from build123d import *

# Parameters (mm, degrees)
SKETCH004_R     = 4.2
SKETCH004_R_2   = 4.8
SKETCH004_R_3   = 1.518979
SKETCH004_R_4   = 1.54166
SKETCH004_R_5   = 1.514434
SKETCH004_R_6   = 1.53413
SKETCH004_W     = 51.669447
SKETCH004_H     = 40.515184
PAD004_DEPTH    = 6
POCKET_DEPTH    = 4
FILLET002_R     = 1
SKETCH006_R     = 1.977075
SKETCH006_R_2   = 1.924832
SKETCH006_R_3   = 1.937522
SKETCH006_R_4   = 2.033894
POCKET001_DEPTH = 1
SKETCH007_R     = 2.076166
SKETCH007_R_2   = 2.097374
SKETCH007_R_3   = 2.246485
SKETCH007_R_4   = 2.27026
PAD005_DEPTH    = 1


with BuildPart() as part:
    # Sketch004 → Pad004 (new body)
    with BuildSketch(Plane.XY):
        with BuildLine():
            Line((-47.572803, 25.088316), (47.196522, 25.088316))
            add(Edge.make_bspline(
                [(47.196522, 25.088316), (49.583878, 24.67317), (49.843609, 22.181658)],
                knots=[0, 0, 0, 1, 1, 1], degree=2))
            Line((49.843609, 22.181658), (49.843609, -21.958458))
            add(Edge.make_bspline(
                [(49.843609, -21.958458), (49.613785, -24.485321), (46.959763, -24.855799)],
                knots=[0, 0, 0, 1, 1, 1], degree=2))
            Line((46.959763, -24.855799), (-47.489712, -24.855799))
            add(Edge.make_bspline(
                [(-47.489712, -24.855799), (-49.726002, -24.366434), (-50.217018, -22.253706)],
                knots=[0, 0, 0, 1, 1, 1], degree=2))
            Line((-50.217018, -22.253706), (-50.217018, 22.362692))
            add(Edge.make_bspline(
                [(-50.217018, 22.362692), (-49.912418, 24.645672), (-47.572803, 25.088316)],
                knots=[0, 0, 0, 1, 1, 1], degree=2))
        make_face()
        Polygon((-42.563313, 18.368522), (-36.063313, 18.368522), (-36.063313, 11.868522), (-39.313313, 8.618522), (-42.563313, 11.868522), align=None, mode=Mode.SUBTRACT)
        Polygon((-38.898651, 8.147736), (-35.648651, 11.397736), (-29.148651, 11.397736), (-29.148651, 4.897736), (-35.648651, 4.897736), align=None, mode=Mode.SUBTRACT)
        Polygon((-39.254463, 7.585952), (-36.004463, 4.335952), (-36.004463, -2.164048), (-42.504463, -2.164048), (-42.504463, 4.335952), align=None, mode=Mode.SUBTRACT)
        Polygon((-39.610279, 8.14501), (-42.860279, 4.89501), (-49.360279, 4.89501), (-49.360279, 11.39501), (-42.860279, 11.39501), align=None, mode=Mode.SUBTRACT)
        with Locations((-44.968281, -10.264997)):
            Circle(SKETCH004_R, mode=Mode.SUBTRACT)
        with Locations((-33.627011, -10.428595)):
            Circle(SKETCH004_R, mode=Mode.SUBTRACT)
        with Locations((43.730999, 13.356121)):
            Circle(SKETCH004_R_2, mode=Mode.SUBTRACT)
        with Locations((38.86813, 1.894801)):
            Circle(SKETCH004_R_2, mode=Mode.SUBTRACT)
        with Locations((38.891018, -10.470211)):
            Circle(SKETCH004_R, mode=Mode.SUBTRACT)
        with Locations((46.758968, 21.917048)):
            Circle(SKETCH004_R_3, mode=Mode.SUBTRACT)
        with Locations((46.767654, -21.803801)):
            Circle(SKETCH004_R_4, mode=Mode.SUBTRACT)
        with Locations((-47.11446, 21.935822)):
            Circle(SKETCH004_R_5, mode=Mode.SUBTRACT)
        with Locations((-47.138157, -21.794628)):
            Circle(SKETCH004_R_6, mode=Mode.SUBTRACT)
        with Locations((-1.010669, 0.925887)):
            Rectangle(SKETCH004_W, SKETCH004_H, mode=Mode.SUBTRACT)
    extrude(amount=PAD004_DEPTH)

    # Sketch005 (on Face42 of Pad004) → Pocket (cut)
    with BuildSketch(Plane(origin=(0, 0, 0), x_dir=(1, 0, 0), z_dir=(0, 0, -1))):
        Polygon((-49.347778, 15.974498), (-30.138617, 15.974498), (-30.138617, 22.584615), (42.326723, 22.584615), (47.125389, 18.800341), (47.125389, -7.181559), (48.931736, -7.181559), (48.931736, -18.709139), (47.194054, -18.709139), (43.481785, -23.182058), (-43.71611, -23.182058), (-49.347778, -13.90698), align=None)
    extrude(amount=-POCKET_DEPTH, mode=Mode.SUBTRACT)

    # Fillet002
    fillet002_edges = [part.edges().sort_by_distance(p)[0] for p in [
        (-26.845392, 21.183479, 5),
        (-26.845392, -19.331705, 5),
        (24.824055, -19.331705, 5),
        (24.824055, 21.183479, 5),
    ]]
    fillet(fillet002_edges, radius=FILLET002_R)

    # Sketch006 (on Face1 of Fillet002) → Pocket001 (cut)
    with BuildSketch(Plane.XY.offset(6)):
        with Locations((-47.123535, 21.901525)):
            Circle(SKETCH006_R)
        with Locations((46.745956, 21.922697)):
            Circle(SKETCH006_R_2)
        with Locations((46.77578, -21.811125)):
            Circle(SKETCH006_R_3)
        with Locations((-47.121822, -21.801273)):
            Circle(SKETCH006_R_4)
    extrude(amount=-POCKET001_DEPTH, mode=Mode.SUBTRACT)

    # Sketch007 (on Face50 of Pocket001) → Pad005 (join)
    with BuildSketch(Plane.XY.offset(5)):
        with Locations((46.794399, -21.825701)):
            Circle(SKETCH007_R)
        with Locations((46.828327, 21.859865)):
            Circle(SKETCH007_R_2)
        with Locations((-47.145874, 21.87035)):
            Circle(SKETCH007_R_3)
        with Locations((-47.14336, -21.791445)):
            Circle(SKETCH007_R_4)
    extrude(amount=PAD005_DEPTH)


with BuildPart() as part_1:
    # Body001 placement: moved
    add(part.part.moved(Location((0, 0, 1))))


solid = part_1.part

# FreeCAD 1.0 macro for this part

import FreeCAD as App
import Part
import Sketcher
from FreeCAD import Vector
Q = App.Units.Quantity


def edges_at(feature, points):
    """Names of the edges that pass closest to the given points."""
    edges = feature.Shape.Edges
    near = lambda p: min(range(len(edges)), key=lambda i: edges[i].distToShape(Part.Vertex(*p))[0])
    return sorted({f"Edge{near(p) + 1}" for p in points})

doc = App.newDocument("Part")
body = doc.addObject("PartDesign::Body", "Body")

# Sketch on XY plane
sketch1 = body.newObject("Sketcher::SketchObject", "Sketch")
sketch1.AttachmentSupport = (doc.getObject("XY_Plane"), [""])
sketch1.MapMode = "FlatFace"
sketch1.addGeometry([
    Part.LineSegment(Vector(47.196522, 25.088316, 0), Vector(-47.572803, 25.088316, 0)),  # 0
    Part.BSplineCurve([Vector(-50.217018, 22.362692, 0), Vector(-49.912418, 24.645672, 0), Vector(-47.572803, 25.088316, 0)], [3, 3], [0, 1], False, 2, [1, 1, 1], False),  # 1
    Part.LineSegment(Vector(-50.217018, 22.362692, 0), Vector(-50.217018, -22.253706, 0)),  # 2
    Part.BSplineCurve([Vector(-47.489712, -24.855799, 0), Vector(-49.726002, -24.366434, 0), Vector(-50.217018, -22.253706, 0)], [3, 3], [0, 1], False, 2, [1, 1, 1], False),  # 3
    Part.LineSegment(Vector(-47.489712, -24.855799, 0), Vector(46.959763, -24.855799, 0)),  # 4
    Part.BSplineCurve([Vector(49.843609, -21.958458, 0), Vector(49.613785, -24.485321, 0), Vector(46.959763, -24.855799, 0)], [3, 3], [0, 1], False, 2, [1, 1, 1], False),  # 5
    Part.LineSegment(Vector(49.843609, -21.958458, 0), Vector(49.843609, 22.181658, 0)),  # 6
    Part.BSplineCurve([Vector(47.196522, 25.088316, 0), Vector(49.583878, 24.67317, 0), Vector(49.843609, 22.181658, 0)], [3, 3], [0, 1], False, 2, [1, 1, 1], False),  # 7
    Part.Circle(Vector(46.767654, -21.803801, 0), Vector(0, 0, 1), 1.54166),  # 8
    Part.Circle(Vector(38.891018, -10.470211, 0), Vector(0, 0, 1), 4.2),  # 9
    Part.Circle(Vector(-47.138157, -21.794628, 0), Vector(0, 0, 1), 1.53413),  # 10
    Part.Circle(Vector(-33.627011, -10.428595, 0), Vector(0, 0, 1), 4.2),  # 11
    Part.Circle(Vector(-44.968281, -10.264997, 0), Vector(0, 0, 1), 4.2),  # 12
    Part.Circle(Vector(38.86813, 1.894801, 0), Vector(0, 0, 1), 4.8),  # 13
    Part.Circle(Vector(43.730999, 13.356121, 0), Vector(0, 0, 1), 4.8),  # 14
    Part.Circle(Vector(46.758968, 21.917048, 0), Vector(0, 0, 1), 1.518979),  # 15
    Part.LineSegment(Vector(-26.845392, -19.331705, 0), Vector(-26.845392, 21.183479, 0)),  # 16
    Part.LineSegment(Vector(-26.845392, 21.183479, 0), Vector(24.824054, 21.183479, 0)),  # 17
    Part.LineSegment(Vector(24.824054, 21.183479, 0), Vector(24.824054, -19.331705, 0)),  # 18
    Part.LineSegment(Vector(24.824054, -19.331705, 0), Vector(-26.845392, -19.331705, 0)),  # 19
    Part.LineSegment(Vector(-39.254463, 7.585952, 0), Vector(-36.004463, 4.335952, 0)),  # 20
    Part.LineSegment(Vector(-36.004463, 4.335952, 0), Vector(-36.004463, -2.164048, 0)),  # 21
    Part.LineSegment(Vector(-36.004463, -2.164048, 0), Vector(-42.504463, -2.164048, 0)),  # 22
    Part.LineSegment(Vector(-42.504463, -2.164048, 0), Vector(-42.504463, 4.335952, 0)),  # 23
    Part.LineSegment(Vector(-42.504463, 4.335952, 0), Vector(-39.254463, 7.585952, 0)),  # 24
    Part.LineSegment(Vector(-38.898651, 8.147736, 0), Vector(-35.648651, 11.397736, 0)),  # 25
    Part.LineSegment(Vector(-35.648651, 11.397736, 0), Vector(-29.148651, 11.397736, 0)),  # 26
    Part.LineSegment(Vector(-29.148651, 11.397736, 0), Vector(-29.148651, 4.897736, 0)),  # 27
    Part.LineSegment(Vector(-29.148651, 4.897736, 0), Vector(-35.648651, 4.897736, 0)),  # 28
    Part.LineSegment(Vector(-35.648651, 4.897736, 0), Vector(-38.898651, 8.147736, 0)),  # 29
    Part.LineSegment(Vector(-39.610279, 8.14501, 0), Vector(-42.860279, 4.89501, 0)),  # 30
    Part.LineSegment(Vector(-42.860279, 4.89501, 0), Vector(-49.360279, 4.89501, 0)),  # 31
    Part.LineSegment(Vector(-49.360279, 4.89501, 0), Vector(-49.360279, 11.39501, 0)),  # 32
    Part.LineSegment(Vector(-49.360279, 11.39501, 0), Vector(-42.860279, 11.39501, 0)),  # 33
    Part.LineSegment(Vector(-42.860279, 11.39501, 0), Vector(-39.610279, 8.14501, 0)),  # 34
    Part.LineSegment(Vector(-42.563313, 18.368522, 0), Vector(-36.063313, 18.368522, 0)),  # 35
    Part.LineSegment(Vector(-36.063313, 18.368522, 0), Vector(-36.063313, 11.868522, 0)),  # 36
    Part.LineSegment(Vector(-36.063313, 11.868522, 0), Vector(-39.313313, 8.618522, 0)),  # 37
    Part.LineSegment(Vector(-39.313313, 8.618522, 0), Vector(-42.563313, 11.868522, 0)),  # 38
    Part.LineSegment(Vector(-42.563313, 11.868522, 0), Vector(-42.563313, 18.368522, 0)),  # 39
    Part.Circle(Vector(-47.11446, 21.935822, 0), Vector(0, 0, 1), 1.514434),  # 40
], False)
sketch1.addConstraint([
    Sketcher.Constraint("Block", 1),
    Sketcher.Constraint("Block", 3),
    Sketcher.Constraint("Block", 5),
    Sketcher.Constraint("Block", 7),
    Sketcher.Constraint("Coincident", 0, 2, 1, 2),
    Sketcher.Constraint("Coincident", 1, 1, 2, 1),
    Sketcher.Constraint("Coincident", 2, 2, 3, 2),
    Sketcher.Constraint("Coincident", 3, 1, 4, 1),
    Sketcher.Constraint("Coincident", 4, 2, 5, 2),
    Sketcher.Constraint("Coincident", 5, 1, 6, 1),
    Sketcher.Constraint("Coincident", 6, 2, 7, 2),
    Sketcher.Constraint("Coincident", 7, 1, 0, 1),
    Sketcher.Constraint("Coincident", 16, 2, 17, 1),
    Sketcher.Constraint("Coincident", 17, 2, 18, 1),
    Sketcher.Constraint("Coincident", 18, 2, 19, 1),
    Sketcher.Constraint("Coincident", 19, 2, 16, 1),
    Sketcher.Constraint("Coincident", 20, 2, 21, 1),
    Sketcher.Constraint("Coincident", 21, 2, 22, 1),
    Sketcher.Constraint("Coincident", 22, 2, 23, 1),
    Sketcher.Constraint("Coincident", 23, 2, 24, 1),
    Sketcher.Constraint("Coincident", 24, 2, 20, 1),
    Sketcher.Constraint("Coincident", 25, 2, 26, 1),
    Sketcher.Constraint("Coincident", 26, 2, 27, 1),
    Sketcher.Constraint("Coincident", 27, 2, 28, 1),
    Sketcher.Constraint("Coincident", 28, 2, 29, 1),
    Sketcher.Constraint("Coincident", 29, 2, 25, 1),
    Sketcher.Constraint("Coincident", 30, 2, 31, 1),
    Sketcher.Constraint("Coincident", 31, 2, 32, 1),
    Sketcher.Constraint("Coincident", 32, 2, 33, 1),
    Sketcher.Constraint("Coincident", 33, 2, 34, 1),
    Sketcher.Constraint("Coincident", 34, 2, 30, 1),
    Sketcher.Constraint("Coincident", 35, 2, 36, 1),
    Sketcher.Constraint("Coincident", 36, 2, 37, 1),
    Sketcher.Constraint("Coincident", 37, 2, 38, 1),
    Sketcher.Constraint("Coincident", 38, 2, 39, 1),
    Sketcher.Constraint("Coincident", 39, 2, 35, 1),
    Sketcher.Constraint("Vertical", 16),
    Sketcher.Constraint("Horizontal", 17),
    Sketcher.Constraint("Vertical", 18),
    Sketcher.Constraint("Horizontal", 19),
    Sketcher.Constraint("Vertical", 21),
    Sketcher.Constraint("Horizontal", 22),
    Sketcher.Constraint("Vertical", 23),
    Sketcher.Constraint("Horizontal", 26),
    Sketcher.Constraint("Vertical", 27),
    Sketcher.Constraint("Horizontal", 28),
    Sketcher.Constraint("Horizontal", 31),
    Sketcher.Constraint("Vertical", 32),
    Sketcher.Constraint("Horizontal", 33),
    Sketcher.Constraint("Horizontal", 35),
    Sketcher.Constraint("Vertical", 36),
    Sketcher.Constraint("Vertical", 39),
    Sketcher.Constraint("Equal", 9, 11),
    Sketcher.Constraint("Equal", 11, 12),
    Sketcher.Constraint("Equal", 13, 14),
    Sketcher.Constraint("Perpendicular", 20, 24),
    Sketcher.Constraint("Parallel", 24, 25),
    Sketcher.Constraint("Perpendicular", 25, 29),
    Sketcher.Constraint("Perpendicular", 29, 30),
    Sketcher.Constraint("Perpendicular", 30, 34),
    Sketcher.Constraint("Perpendicular", 34, 37),
    Sketcher.Constraint("Perpendicular", 37, 38),
    Sketcher.Constraint("Horizontal", 20, 2, 23, 2),
    Sketcher.Constraint("Horizontal", 36, 2, 38, 2),
    Sketcher.Constraint("Vertical", 25, 2, 28, 2),
    Sketcher.Constraint("Vertical", 30, 2, 33, 2),
    Sketcher.Constraint("Equal", 22, 26),
    Sketcher.Constraint("Equal", 28, 31),
    Sketcher.Constraint("Equal", 33, 35),
    Sketcher.Constraint("Equal", 35, 21),
    Sketcher.Constraint("Equal", 23, 27),
    Sketcher.Constraint("Equal", 27, 32),
    Sketcher.Constraint("Equal", 32, 36),
    Sketcher.Constraint("Equal", 20, 24),
    Sketcher.Constraint("Diameter", 9, Q("8.4 mm")),
    Sketcher.Constraint("Diameter", 13, Q("9.6 mm")),
    Sketcher.Constraint("DistanceX", 22, 2, 22, 1, Q("6.5 mm")),
    Sketcher.Constraint("Diameter", 8, Q("3.08332 mm")),
    Sketcher.Constraint("Diameter", 10, Q("3.06826 mm")),
    Sketcher.Constraint("Diameter", 15, Q("3.037958 mm")),
    Sketcher.Constraint("Diameter", 40, Q("3.028868 mm")),
    Sketcher.Constraint("DistanceX", -1, 1, 14, 3, Q("43.730999 mm")),
    Sketcher.Constraint("DistanceY", 4, 2, 8, 3, Q("3.051998 mm")),
    Sketcher.Constraint("DistanceY", 2, 2, 19, 2, Q("2.922001 mm")),
    Sketcher.Constraint("DistanceY", -1, 1, 13, 3, Q("1.894801 mm")),
    Sketcher.Constraint("DistanceY", 11, 3, 12, 3, Q("0.163598 mm")),
    Sketcher.Constraint("DistanceX", 12, 3, 9, 3, Q("83.859299 mm")),
    Sketcher.Constraint("DistanceY", 14, 3, 40, 3, Q("8.579701 mm")),
    Sketcher.Constraint("DistanceX", 18, 2, 8, 3, Q("21.9436 mm")),
    Sketcher.Constraint("DistanceY", 39, 2, 40, 3, Q("3.5673 mm")),
    Sketcher.Constraint("DistanceX", 17, 1, 17, 2, Q("51.669447 mm")),
    Sketcher.Constraint("DistanceY", 16, 1, 16, 2, Q("40.515184 mm")),
    Sketcher.Constraint("DistanceX", -1, 1, 9, 3, Q("38.891018 mm")),
    Sketcher.Constraint("DistanceY", 9, 3, -1, 1, Q("10.470211 mm")),
    Sketcher.Constraint("DistanceX", 11, 3, -1, 1, Q("33.627011 mm")),
    Sketcher.Constraint("DistanceX", -1, 1, 13, 3, Q("38.86813 mm")),
    Sketcher.Constraint("DistanceY", -1, 1, 14, 3, Q("13.356121 mm")),
    Sketcher.Constraint("DistanceX", -1, 1, 15, 3, Q("46.758968 mm")),
    Sketcher.Constraint("DistanceY", -1, 1, 15, 3, Q("21.917048 mm")),
    Sketcher.Constraint("DistanceX", 40, 3, -1, 1, Q("47.11446 mm")),
    Sketcher.Constraint("DistanceY", -1, 1, 20, 2, Q("4.335952 mm")),
    Sketcher.Constraint("DistanceX", 25, 2, -1, 1, Q("35.648651 mm")),
    Sketcher.Constraint("DistanceX", 30, 2, -1, 1, Q("42.860279 mm")),
    Sketcher.Constraint("DistanceY", -1, 1, 30, 2, Q("4.89501 mm")),
    Sketcher.Constraint("DistanceX", 10, 3, 8, 3, Q("93.905811 mm")),
    Sketcher.Constraint("DistanceY", 10, 3, 12, 3, Q("11.529631 mm")),
    Sketcher.Constraint("DistanceY", 10, 3, 13, 3, Q("23.689429 mm")),
    Sketcher.Constraint("DistanceX", 2, 2, 10, 3, Q("3.078861 mm")),
    Sketcher.Constraint("DistanceX", 20, 2, 11, 3, Q("2.377452 mm")),
    Sketcher.Constraint("DistanceX", 35, 2, 25, 2, Q("0.414662 mm")),
    Sketcher.Constraint("DistanceY", -1, 1, 25, 2, Q("11.397736 mm")),
])
pad1 = body.newObject("PartDesign::Pad", "Pad")
pad1.Profile = sketch1
pad1.Length = 6

# Sketch on XY plane
sketch2 = body.newObject("Sketcher::SketchObject", "Sketch001")
sketch2.AttachmentSupport = (doc.getObject("XY_Plane"), [""])
sketch2.MapMode = "FlatFace"
sketch2.addGeometry([
    Part.LineSegment(Vector(-30.138617, -15.974498, 0), Vector(-49.347778, -15.974498, 0)),  # 0
    Part.LineSegment(Vector(-49.347778, -15.974498, 0), Vector(-49.347778, 13.90698, 0)),  # 1
    Part.LineSegment(Vector(-49.347778, 13.90698, 0), Vector(-43.71611, 23.182058, 0)),  # 2
    Part.LineSegment(Vector(-43.71611, 23.182058, 0), Vector(43.481785, 23.182058, 0)),  # 3
    Part.LineSegment(Vector(43.481785, 23.182058, 0), Vector(47.194054, 18.709139, 0)),  # 4
    Part.LineSegment(Vector(47.194054, 18.709139, 0), Vector(48.931736, 18.709139, 0)),  # 5
    Part.LineSegment(Vector(48.931736, 18.709139, 0), Vector(48.931736, 7.181559, 0)),  # 6
    Part.LineSegment(Vector(48.931736, 7.181559, 0), Vector(47.125389, 7.181559, 0)),  # 7
    Part.LineSegment(Vector(47.125389, 7.181559, 0), Vector(47.125389, -18.800341, 0)),  # 8
    Part.LineSegment(Vector(47.125389, -18.800341, 0), Vector(42.326723, -22.584615, 0)),  # 9
    Part.LineSegment(Vector(42.326723, -22.584615, 0), Vector(-30.138617, -22.584615, 0)),  # 10
    Part.LineSegment(Vector(-30.138617, -22.584615, 0), Vector(-30.138617, -15.974498, 0)),  # 11
], False)
sketch2.addConstraint([
    Sketcher.Constraint("Coincident", 0, 2, 1, 1),
    Sketcher.Constraint("Coincident", 1, 2, 2, 1),
    Sketcher.Constraint("Coincident", 2, 2, 3, 1),
    Sketcher.Constraint("Coincident", 3, 2, 4, 1),
    Sketcher.Constraint("Coincident", 4, 2, 5, 1),
    Sketcher.Constraint("Coincident", 5, 2, 6, 1),
    Sketcher.Constraint("Coincident", 6, 2, 7, 1),
    Sketcher.Constraint("Coincident", 7, 2, 8, 1),
    Sketcher.Constraint("Coincident", 8, 2, 9, 1),
    Sketcher.Constraint("Coincident", 9, 2, 10, 1),
    Sketcher.Constraint("Coincident", 10, 2, 11, 1),
    Sketcher.Constraint("Coincident", 11, 2, 0, 1),
    Sketcher.Constraint("Horizontal", 0),
    Sketcher.Constraint("Vertical", 1),
    Sketcher.Constraint("Horizontal", 3),
    Sketcher.Constraint("Horizontal", 5),
    Sketcher.Constraint("Vertical", 6),
    Sketcher.Constraint("Horizontal", 7),
    Sketcher.Constraint("Vertical", 8),
    Sketcher.Constraint("Horizontal", 10),
    Sketcher.Constraint("Vertical", 11),
    Sketcher.Constraint("DistanceY", 8, 2, 8, 1, Q("25.9819 mm")),
    Sketcher.Constraint("DistanceX", 0, 2, 0, 1, Q("19.209161 mm")),
    Sketcher.Constraint("DistanceX", 5, 1, 5, 2, Q("1.737682 mm")),
    Sketcher.Constraint("DistanceX", 10, 2, 10, 1, Q("72.46534 mm")),
    Sketcher.Constraint("DistanceY", 1, 1, 1, 2, Q("29.881478 mm")),
    Sketcher.Constraint("DistanceY", 6, 2, 6, 1, Q("11.52758 mm")),
    Sketcher.Constraint("DistanceY", 6, 2, 3, 2, Q("16.000499 mm")),
    Sketcher.Constraint("DistanceX", 2, 2, 7, 2, Q("90.841499 mm")),
    Sketcher.Constraint("Distance", 4, Q("5.81274 mm")),
    Sketcher.Constraint("DistanceX", 3, 1, 3, 2, Q("87.197895 mm")),
    Sketcher.Constraint("DistanceY", 11, 1, 11, 2, Q("6.610117 mm")),
    Sketcher.Constraint("DistanceY", -1, 1, 1, 2, Q("13.90698 mm")),
    Sketcher.Constraint("DistanceX", 2, 2, -1, 1, Q("43.71611 mm")),
    Sketcher.Constraint("DistanceY", -1, 1, 2, 2, Q("23.182058 mm")),
    Sketcher.Constraint("DistanceX", 1, 2, 4, 2, Q("96.541832 mm")),
])
pocket1 = body.newObject("PartDesign::Pocket", "Pocket")
pocket1.Profile = sketch2
pocket1.Length = 4
pocket1.Reversed = True
doc.recompute()

fillet = body.newObject("PartDesign::Fillet", "Fillet")
fillet.Base = (pocket1, edges_at(pocket1, [
    (-26.845, 21.183, 5),
    (-26.845, -19.332, 5),
    (24.824, -19.332, 5),
    (24.824, 21.183, 5),
]))
fillet.Radius = 1

# Sketch on XY plane
sketch3 = body.newObject("Sketcher::SketchObject", "Sketch002")
sketch3.AttachmentSupport = (doc.getObject("XY_Plane"), [""])
sketch3.MapMode = "FlatFace"
sketch3.AttachmentOffset = App.Placement(Vector(0, 0, 6), App.Rotation())
sketch3.addGeometry([
    Part.Circle(Vector(-47.123535, 21.901525, 0), Vector(0, 0, 1), 1.977075),
    Part.Circle(Vector(46.745956, 21.922697, 0), Vector(0, 0, 1), 1.924832),
    Part.Circle(Vector(46.77578, -21.811125, 0), Vector(0, 0, 1), 1.937522),
    Part.Circle(Vector(-47.121822, -21.801273, 0), Vector(0, 0, 1), 2.033894),
], False)
sketch3.addConstraint([
    Sketcher.Constraint("Diameter", 0, Q("3.95415 mm")),
    Sketcher.Constraint("Diameter", 3, Q("4.067788 mm")),
    Sketcher.Constraint("Diameter", 1, Q("3.849664 mm")),
    Sketcher.Constraint("Diameter", 2, Q("3.875044 mm")),
    Sketcher.Constraint("DistanceX", -1, 1, 2, 3, Q("46.77578 mm")),
    Sketcher.Constraint("DistanceX", 0, 3, 1, 3, Q("93.869491 mm")),
    Sketcher.Constraint("DistanceY", 0, 3, 1, 3, Q("0.021172 mm")),
    Sketcher.Constraint("DistanceY", 2, 3, 0, 3, Q("43.71265 mm")),
    Sketcher.Constraint("DistanceX", 3, 3, 1, 3, Q("93.867778 mm")),
    Sketcher.Constraint("DistanceY", 3, 3, 1, 3, Q("43.72397 mm")),
    Sketcher.Constraint("DistanceX", 0, 3, -1, 1, Q("47.123535 mm")),
    Sketcher.Constraint("DistanceY", -1, 1, 0, 3, Q("21.901525 mm")),
])
pocket2 = body.newObject("PartDesign::Pocket", "Pocket001")
pocket2.Profile = sketch3
pocket2.Length = 1

# Sketch on XY plane
sketch4 = body.newObject("Sketcher::SketchObject", "Sketch003")
sketch4.AttachmentSupport = (doc.getObject("XY_Plane"), [""])
sketch4.MapMode = "FlatFace"
sketch4.AttachmentOffset = App.Placement(Vector(0, 0, 5), App.Rotation())
sketch4.addGeometry([
    Part.Circle(Vector(46.794399, -21.825701, 0), Vector(0, 0, 1), 2.076166),
    Part.Circle(Vector(46.828327, 21.859865, 0), Vector(0, 0, 1), 2.097374),
    Part.Circle(Vector(-47.145874, 21.87035, 0), Vector(0, 0, 1), 2.246485),
    Part.Circle(Vector(-47.14336, -21.791445, 0), Vector(0, 0, 1), 2.27026),
], False)
sketch4.addConstraint([
    Sketcher.Constraint("Diameter", 2, Q("4.49297 mm")),
    Sketcher.Constraint("Diameter", 3, Q("4.54052 mm")),
    Sketcher.Constraint("Diameter", 0, Q("4.152332 mm")),
    Sketcher.Constraint("Diameter", 1, Q("4.194748 mm")),
    Sketcher.Constraint("DistanceX", -1, 1, 0, 3, Q("46.794399 mm")),
    Sketcher.Constraint("DistanceY", 0, 3, -1, 1, Q("21.825701 mm")),
    Sketcher.Constraint("DistanceX", 2, 3, 1, 3, Q("93.974201 mm")),
    Sketcher.Constraint("DistanceY", -1, 1, 2, 3, Q("21.87035 mm")),
    Sketcher.Constraint("DistanceX", 3, 3, -1, 1, Q("47.14336 mm")),
    Sketcher.Constraint("DistanceX", 0, 3, 1, 3, Q("0.033928 mm")),
    Sketcher.Constraint("DistanceY", 3, 3, 1, 3, Q("43.65131 mm")),
    Sketcher.Constraint("DistanceY", -1, 1, 1, 3, Q("21.859865 mm")),
])
pad2 = body.newObject("PartDesign::Pad", "Pad001")
pad2.Profile = sketch4
pad2.Length = 1
body2 = doc.addObject("PartDesign::Body", "Body001")
doc.recompute()

body.Placement = App.Placement(Vector(0, 0, 1), App.Rotation(Vector(0, 0, 1), 0))
boolean = body2.newObject("PartDesign::Boolean", "Boolean")
boolean.Type = "Fuse"
boolean.addObjects([body])

doc.recompute()
